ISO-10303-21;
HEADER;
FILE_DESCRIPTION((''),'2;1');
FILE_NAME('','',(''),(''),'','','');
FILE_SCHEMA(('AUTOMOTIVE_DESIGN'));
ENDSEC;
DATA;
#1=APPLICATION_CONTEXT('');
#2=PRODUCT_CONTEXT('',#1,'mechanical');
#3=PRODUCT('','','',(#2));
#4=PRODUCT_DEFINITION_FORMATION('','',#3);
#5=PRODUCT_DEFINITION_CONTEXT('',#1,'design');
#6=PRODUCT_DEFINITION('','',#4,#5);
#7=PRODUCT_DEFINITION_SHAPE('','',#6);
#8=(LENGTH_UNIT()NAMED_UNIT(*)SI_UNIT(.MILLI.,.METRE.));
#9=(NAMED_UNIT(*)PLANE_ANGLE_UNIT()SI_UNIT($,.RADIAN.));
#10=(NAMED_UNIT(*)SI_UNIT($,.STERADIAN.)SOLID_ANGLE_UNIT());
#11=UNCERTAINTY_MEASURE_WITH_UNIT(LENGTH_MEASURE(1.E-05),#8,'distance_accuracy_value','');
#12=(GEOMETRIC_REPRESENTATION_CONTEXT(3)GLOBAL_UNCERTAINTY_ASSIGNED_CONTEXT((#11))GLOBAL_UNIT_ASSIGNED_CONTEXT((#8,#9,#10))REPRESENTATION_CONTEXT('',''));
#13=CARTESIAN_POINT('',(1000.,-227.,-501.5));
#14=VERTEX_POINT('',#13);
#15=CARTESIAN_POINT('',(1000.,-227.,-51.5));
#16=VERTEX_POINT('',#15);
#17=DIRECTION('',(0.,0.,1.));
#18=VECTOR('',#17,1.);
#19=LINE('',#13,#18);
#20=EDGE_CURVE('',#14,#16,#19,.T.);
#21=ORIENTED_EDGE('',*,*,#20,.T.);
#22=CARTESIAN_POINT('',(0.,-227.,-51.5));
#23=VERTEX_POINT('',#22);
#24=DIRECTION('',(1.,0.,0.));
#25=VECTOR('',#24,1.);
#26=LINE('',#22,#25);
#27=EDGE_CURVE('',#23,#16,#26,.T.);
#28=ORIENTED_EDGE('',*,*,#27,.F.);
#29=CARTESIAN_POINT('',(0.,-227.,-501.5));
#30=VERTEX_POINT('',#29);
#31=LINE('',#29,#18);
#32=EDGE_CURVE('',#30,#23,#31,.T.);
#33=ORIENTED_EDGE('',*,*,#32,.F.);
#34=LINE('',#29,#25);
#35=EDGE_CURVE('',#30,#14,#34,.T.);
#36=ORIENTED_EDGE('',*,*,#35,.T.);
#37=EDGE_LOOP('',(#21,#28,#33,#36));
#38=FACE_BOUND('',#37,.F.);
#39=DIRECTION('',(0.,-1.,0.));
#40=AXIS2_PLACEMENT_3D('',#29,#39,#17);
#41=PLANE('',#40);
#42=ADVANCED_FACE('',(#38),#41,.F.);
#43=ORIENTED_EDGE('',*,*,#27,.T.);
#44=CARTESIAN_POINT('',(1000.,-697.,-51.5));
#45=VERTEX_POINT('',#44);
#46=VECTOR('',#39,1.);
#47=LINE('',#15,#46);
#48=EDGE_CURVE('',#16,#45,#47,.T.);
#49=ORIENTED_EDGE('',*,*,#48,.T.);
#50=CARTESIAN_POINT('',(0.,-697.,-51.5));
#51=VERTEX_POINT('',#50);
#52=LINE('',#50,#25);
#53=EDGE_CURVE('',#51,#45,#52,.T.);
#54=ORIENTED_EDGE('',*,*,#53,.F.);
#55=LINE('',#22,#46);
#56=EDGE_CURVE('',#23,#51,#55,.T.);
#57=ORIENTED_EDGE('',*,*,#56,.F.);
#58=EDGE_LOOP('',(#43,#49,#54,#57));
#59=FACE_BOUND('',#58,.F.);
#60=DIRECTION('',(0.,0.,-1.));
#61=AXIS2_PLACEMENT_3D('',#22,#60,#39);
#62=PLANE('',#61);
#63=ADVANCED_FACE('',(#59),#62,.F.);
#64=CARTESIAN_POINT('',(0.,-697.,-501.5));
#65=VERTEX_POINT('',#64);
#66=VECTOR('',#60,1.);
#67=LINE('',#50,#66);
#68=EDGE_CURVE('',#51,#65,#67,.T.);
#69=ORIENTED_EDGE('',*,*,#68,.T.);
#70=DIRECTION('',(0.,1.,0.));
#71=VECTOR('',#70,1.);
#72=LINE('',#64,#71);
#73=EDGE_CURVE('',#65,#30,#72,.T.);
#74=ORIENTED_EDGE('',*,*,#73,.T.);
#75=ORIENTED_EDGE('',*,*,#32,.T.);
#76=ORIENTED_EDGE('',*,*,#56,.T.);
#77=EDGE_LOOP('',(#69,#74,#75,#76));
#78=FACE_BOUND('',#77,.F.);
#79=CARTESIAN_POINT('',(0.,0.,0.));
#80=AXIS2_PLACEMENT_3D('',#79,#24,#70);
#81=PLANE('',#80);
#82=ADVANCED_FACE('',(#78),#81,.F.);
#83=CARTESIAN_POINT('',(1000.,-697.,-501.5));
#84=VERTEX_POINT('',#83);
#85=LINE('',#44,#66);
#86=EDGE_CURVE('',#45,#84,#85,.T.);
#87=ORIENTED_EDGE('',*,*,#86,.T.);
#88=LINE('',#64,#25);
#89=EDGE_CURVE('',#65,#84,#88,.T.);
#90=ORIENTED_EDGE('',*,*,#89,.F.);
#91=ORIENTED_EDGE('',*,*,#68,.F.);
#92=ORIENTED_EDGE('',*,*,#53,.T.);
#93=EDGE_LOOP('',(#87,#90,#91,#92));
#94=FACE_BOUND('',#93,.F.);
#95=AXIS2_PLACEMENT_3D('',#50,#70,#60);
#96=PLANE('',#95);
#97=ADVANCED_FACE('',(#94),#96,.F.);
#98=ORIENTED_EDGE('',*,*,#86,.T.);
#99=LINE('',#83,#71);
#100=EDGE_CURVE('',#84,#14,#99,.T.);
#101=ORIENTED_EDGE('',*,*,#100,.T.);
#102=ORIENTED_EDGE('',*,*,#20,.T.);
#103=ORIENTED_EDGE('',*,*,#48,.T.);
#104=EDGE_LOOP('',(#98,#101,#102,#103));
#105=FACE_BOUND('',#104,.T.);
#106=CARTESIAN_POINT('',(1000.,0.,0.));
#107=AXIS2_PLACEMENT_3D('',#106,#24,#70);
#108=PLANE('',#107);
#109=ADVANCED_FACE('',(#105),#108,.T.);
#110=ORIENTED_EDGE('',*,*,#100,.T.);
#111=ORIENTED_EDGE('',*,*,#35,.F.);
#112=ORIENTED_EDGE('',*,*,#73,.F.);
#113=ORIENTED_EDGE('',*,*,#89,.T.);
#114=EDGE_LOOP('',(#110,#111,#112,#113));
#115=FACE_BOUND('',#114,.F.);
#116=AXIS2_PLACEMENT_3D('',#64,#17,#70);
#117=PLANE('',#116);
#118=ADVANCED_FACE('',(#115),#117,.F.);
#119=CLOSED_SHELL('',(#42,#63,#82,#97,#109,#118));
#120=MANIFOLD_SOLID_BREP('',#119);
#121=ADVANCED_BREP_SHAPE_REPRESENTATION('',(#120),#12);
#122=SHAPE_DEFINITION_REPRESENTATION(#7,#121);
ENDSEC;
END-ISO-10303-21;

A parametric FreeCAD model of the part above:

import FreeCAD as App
import Part
import Sketcher
from FreeCAD import Vector


def add_polygon(sketch, points):
    """Adds a closed chain of lines whose ends are joined by coincident constraints."""
    first, n = sketch.GeometryCount, len(points)
    for a, b in zip(points, points[1:] + points[:1]):
        sketch.addGeometry(Part.LineSegment(App.Vector(*a, 0), App.Vector(*b, 0)), False)
    for i in range(n):
        sketch.addConstraint(Sketcher.Constraint("Coincident", first + i, 2, first + (i + 1) % n, 1))

doc = App.newDocument("Part")
params = doc.addObject("Spreadsheet::Sheet", "Params")
for row, (alias, value) in enumerate([
    ("sketch1_width", "470 mm"),
    ("sketch1_height", "450 mm"),
    ("pad1_length", "1000 mm"),
], start=1):
    params.set(f"A{row}", alias)
    params.set(f"B{row}", "=" + value)
    params.setAlias(f"B{row}", alias)

body = doc.addObject("PartDesign::Body", "Body")

sketch1 = doc.addObject("Sketcher::SketchObject", "Sketch")
body.addObject(sketch1)
sketch1.AttachmentSupport = (doc.YZ_Plane, [""])
sketch1.MapMode = "FlatFace"
add_polygon(sketch1, [(-227, -502), (-227, -52), (-697, -52), (-697, -502)])
sketch1.addConstraint([
    Sketcher.Constraint("Vertical", 0),
    Sketcher.Constraint("Horizontal", 1),
    Sketcher.Constraint("Vertical", 2),
    Sketcher.Constraint("Horizontal", 3),
    Sketcher.Constraint("DistanceX", 1, 2, 1, 1, 470.0),
    Sketcher.Constraint("DistanceY", 0, 1, 0, 2, 450.0),
    Sketcher.Constraint("DistanceX", 1, 2, -1, 1, 697.0),
    Sketcher.Constraint("DistanceY", 0, 2, -1, 1, 51.5),
])
sketch1.setExpression("Constraints[8]", "Params.sketch1_width")
sketch1.setExpression("Constraints[9]", "Params.sketch1_height")
pad1 = doc.addObject("PartDesign::Pad", "Pad")
body.addObject(pad1)
pad1.Profile = sketch1
pad1.setExpression("Length", "Params.pad1_length")

doc.recompute()
